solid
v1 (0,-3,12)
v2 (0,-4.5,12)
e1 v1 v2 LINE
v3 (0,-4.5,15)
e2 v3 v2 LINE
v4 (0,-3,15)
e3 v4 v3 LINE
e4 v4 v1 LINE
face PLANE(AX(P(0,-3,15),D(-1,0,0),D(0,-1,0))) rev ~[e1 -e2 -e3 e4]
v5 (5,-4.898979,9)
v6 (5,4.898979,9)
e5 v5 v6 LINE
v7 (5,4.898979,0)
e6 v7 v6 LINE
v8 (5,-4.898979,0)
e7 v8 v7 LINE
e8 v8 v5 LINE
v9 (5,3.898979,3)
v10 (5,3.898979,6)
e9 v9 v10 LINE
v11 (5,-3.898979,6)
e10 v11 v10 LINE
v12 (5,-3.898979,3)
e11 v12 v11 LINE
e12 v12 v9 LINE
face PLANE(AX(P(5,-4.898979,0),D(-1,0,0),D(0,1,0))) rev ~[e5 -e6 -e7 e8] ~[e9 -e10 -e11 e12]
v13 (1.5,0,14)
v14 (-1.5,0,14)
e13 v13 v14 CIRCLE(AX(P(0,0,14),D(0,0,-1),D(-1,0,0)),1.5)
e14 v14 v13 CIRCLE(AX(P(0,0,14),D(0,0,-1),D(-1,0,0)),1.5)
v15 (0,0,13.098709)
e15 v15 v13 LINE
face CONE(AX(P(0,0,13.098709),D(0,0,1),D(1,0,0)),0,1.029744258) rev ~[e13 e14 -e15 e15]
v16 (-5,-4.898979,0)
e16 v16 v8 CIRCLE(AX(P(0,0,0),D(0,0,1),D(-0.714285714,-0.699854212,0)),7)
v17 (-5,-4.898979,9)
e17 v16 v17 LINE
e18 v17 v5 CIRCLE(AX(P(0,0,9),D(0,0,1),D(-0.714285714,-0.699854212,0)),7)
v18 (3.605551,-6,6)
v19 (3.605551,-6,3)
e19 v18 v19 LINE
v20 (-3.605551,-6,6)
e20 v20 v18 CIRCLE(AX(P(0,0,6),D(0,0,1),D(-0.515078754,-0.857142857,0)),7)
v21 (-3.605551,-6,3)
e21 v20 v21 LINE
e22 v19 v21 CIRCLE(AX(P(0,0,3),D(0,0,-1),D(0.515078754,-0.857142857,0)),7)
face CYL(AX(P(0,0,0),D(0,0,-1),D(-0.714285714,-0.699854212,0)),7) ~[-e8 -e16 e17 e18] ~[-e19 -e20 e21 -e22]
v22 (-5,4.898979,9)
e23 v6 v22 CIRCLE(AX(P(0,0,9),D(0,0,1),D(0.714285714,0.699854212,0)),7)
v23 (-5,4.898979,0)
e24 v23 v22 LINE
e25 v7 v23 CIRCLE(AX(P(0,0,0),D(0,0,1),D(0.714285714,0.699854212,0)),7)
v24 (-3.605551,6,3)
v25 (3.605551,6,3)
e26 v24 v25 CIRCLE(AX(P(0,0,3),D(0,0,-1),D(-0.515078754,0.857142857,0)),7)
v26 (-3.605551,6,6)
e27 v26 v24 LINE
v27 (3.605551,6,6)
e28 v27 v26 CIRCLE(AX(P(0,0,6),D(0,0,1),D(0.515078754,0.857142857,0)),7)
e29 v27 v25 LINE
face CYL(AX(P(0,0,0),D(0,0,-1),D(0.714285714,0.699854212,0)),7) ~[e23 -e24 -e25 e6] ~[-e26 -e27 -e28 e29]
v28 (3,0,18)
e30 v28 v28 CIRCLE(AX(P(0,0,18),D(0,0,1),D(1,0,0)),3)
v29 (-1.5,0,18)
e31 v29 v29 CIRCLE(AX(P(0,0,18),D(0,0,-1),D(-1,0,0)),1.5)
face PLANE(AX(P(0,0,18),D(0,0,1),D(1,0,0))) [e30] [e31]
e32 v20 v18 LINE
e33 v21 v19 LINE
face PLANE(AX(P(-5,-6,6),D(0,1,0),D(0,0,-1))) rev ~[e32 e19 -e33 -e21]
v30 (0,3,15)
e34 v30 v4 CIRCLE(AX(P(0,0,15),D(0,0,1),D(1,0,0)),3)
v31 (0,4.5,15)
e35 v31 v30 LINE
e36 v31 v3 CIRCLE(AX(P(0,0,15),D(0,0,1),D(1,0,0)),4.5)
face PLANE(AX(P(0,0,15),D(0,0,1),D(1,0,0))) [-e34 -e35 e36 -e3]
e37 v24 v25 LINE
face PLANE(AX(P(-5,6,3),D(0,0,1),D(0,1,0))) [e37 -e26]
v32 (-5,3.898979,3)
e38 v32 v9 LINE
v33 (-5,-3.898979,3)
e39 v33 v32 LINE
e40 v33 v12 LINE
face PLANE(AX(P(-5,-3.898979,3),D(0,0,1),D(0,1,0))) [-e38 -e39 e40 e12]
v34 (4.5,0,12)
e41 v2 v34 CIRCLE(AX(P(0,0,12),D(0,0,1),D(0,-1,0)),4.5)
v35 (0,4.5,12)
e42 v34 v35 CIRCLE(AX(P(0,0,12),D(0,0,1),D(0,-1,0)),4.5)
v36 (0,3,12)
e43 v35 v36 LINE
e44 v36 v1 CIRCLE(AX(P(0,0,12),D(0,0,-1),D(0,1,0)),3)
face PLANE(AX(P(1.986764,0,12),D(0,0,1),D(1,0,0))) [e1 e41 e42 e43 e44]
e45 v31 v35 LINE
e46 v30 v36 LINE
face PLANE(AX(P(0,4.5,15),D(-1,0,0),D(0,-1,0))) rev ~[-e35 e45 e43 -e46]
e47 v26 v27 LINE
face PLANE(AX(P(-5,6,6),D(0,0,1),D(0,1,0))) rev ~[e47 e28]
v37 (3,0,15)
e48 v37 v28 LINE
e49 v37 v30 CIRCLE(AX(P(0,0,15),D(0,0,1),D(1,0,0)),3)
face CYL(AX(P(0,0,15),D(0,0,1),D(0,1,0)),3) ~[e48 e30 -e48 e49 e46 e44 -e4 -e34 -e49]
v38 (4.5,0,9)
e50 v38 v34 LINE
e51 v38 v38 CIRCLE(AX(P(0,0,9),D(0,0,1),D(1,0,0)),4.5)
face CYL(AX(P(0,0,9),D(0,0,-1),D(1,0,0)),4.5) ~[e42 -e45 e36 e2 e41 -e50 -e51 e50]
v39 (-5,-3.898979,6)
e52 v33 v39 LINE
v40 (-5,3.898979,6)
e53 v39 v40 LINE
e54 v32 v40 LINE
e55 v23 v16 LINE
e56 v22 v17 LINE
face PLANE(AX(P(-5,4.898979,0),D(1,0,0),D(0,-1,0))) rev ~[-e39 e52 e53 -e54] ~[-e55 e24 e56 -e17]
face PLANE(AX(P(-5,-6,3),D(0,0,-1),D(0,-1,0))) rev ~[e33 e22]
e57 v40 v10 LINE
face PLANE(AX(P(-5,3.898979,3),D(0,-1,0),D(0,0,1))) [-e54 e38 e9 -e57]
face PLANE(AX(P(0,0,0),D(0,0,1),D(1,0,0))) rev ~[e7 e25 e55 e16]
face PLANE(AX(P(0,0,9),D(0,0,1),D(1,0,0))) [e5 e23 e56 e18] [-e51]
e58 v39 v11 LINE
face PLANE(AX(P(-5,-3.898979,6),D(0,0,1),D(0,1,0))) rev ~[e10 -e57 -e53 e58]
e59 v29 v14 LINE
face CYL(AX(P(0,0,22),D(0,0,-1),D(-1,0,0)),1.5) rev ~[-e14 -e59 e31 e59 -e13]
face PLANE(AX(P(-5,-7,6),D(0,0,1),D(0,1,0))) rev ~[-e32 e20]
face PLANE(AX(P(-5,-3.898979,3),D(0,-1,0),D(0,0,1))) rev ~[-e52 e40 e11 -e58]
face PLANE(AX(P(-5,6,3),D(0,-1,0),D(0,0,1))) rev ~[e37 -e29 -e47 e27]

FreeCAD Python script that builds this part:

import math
import FreeCAD as App
import Part
import Sketcher
from FreeCAD import Vector

doc = App.newDocument("Part")
body = doc.addObject("PartDesign::Body", "Body")

# Sketch on XY plane
sketch1 = body.newObject("Sketcher::SketchObject", "Sketch")
sketch1.AttachmentSupport = (doc.getObject("XY_Plane"), [""])
sketch1.MapMode = "FlatFace"
sketch1.addGeometry([
    Part.ArcOfCircle(Part.Circle(Vector(0, 0, 0), Vector(0, 0, 1), 7), math.radians(-135.584691), math.radians(-44.415309)),
    Part.LineSegment(Vector(5, -4.898979, 0), Vector(5, 4.898979, 0)),
    Part.ArcOfCircle(Part.Circle(Vector(0, 0, 0), Vector(0, 0, 1), 7), math.radians(44.415309), math.radians(135.584691)),
    Part.LineSegment(Vector(-5, 4.898979, 0), Vector(-5, -4.898979, 0)),
], False)
sketch1.addConstraint([
    Sketcher.Constraint("Coincident", 0, 2, 1, 1),
    Sketcher.Constraint("Coincident", 1, 2, 2, 1),
    Sketcher.Constraint("Coincident", 2, 2, 3, 1),
    Sketcher.Constraint("Coincident", 3, 2, 0, 1),
    Sketcher.Constraint("Vertical", 1),
    Sketcher.Constraint("Vertical", 3),
    Sketcher.Constraint("Coincident", 0, 3, -1, 1),
    Sketcher.Constraint("Coincident", 2, 3, -1, 1),
    Sketcher.Constraint("Equal", 0, 2),
    Sketcher.Constraint("Horizontal", 1, 2, 2, 2),
    Sketcher.Constraint("Radius", 0, 7.0),
    Sketcher.Constraint("DistanceX", -1, 1, 0, 2, 5.0),
])
pad1 = body.newObject("PartDesign::Pad", "Pad")
pad1.Profile = sketch1
pad1.Length = 9

# Sketch on YZ plane
sketch2 = body.newObject("Sketcher::SketchObject", "Sketch001")
sketch2.AttachmentSupport = (doc.getObject("YZ_Plane"), [""])
sketch2.MapMode = "FlatFace"
sketch2.AttachmentOffset = App.Placement(Vector(0, 0, -5), App.Rotation())
sketch2.addGeometry([
    Part.LineSegment(Vector(7, 3, 0), Vector(6, 3, 0)),  # 0
    Part.LineSegment(Vector(6, 3, 0), Vector(6, 6, 0)),  # 1
    Part.LineSegment(Vector(6, 6, 0), Vector(7, 6, 0)),  # 2
    Part.LineSegment(Vector(7, 6, 0), Vector(7, 3, 0)),  # 3
    Part.LineSegment(Vector(3.898979, 3, 0), Vector(-3.898979, 3, 0)),  # 4
    Part.LineSegment(Vector(-3.898979, 3, 0), Vector(-3.898979, 6, 0)),  # 5
    Part.LineSegment(Vector(-3.898979, 6, 0), Vector(3.898979, 6, 0)),  # 6
    Part.LineSegment(Vector(3.898979, 6, 0), Vector(3.898979, 3, 0)),  # 7
    Part.LineSegment(Vector(-7, 3, 0), Vector(-7, 6, 0)),  # 8
    Part.LineSegment(Vector(-7, 6, 0), Vector(-6, 6, 0)),  # 9
    Part.LineSegment(Vector(-6, 6, 0), Vector(-6, 3, 0)),  # 10
    Part.LineSegment(Vector(-6, 3, 0), Vector(-7, 3, 0)),  # 11
], False)
sketch2.addConstraint([
    Sketcher.Constraint("Coincident", 0, 2, 1, 1),
    Sketcher.Constraint("Coincident", 1, 2, 2, 1),
    Sketcher.Constraint("Coincident", 2, 2, 3, 1),
    Sketcher.Constraint("Coincident", 3, 2, 0, 1),
    Sketcher.Constraint("Coincident", 4, 2, 5, 1),
    Sketcher.Constraint("Coincident", 5, 2, 6, 1),
    Sketcher.Constraint("Coincident", 6, 2, 7, 1),
    Sketcher.Constraint("Coincident", 7, 2, 4, 1),
    Sketcher.Constraint("Coincident", 8, 2, 9, 1),
    Sketcher.Constraint("Coincident", 9, 2, 10, 1),
    Sketcher.Constraint("Coincident", 10, 2, 11, 1),
    Sketcher.Constraint("Coincident", 11, 2, 8, 1),
    Sketcher.Constraint("Horizontal", 0),
    Sketcher.Constraint("Vertical", 1),
    Sketcher.Constraint("Horizontal", 2),
    Sketcher.Constraint("Vertical", 3),
    Sketcher.Constraint("Horizontal", 4),
    Sketcher.Constraint("Vertical", 5),
    Sketcher.Constraint("Horizontal", 6),
    Sketcher.Constraint("Vertical", 7),
    Sketcher.Constraint("Vertical", 8),
    Sketcher.Constraint("Horizontal", 9),
    Sketcher.Constraint("Vertical", 10),
    Sketcher.Constraint("Horizontal", 11),
    Sketcher.Constraint("Symmetric", 2, 2, 8, 2, -2),
    Sketcher.Constraint("Symmetric", 0, 2, 10, 2, -2),
    Sketcher.Constraint("Horizontal", 3, 2, 4, 2),
    Sketcher.Constraint("Horizontal", 2, 2, 5, 2),
    Sketcher.Constraint("DistanceX", 0, 2, 0, 1, 1.0),
    Sketcher.Constraint("DistanceY", 1, 1, 1, 2, 3.0),
    Sketcher.Constraint("DistanceX", -1, 1, 0, 2, 6.0),
    Sketcher.Constraint("DistanceY", -1, 1, 0, 2, 3.0),
    Sketcher.Constraint("DistanceX", 4, 2, 4, 1, 7.797959),
    Sketcher.Constraint("DistanceX", 4, 2, -1, 1, 3.898979),
])
pocket1 = body.newObject("PartDesign::Pocket", "Pocket")
pocket1.Profile = sketch2
pocket1.Length = 19
pocket1.Reversed = True

# Sketch on XY plane
sketch3 = body.newObject("Sketcher::SketchObject", "Sketch002")
sketch3.AttachmentSupport = (doc.getObject("XY_Plane"), [""])
sketch3.MapMode = "FlatFace"
sketch3.AttachmentOffset = App.Placement(Vector(0, 0, 9), App.Rotation())
sketch3.addGeometry(Part.Circle(Vector(0, 0, 0), Vector(0, 0, 1), 4.5), False)
sketch3.addConstraint([
    Sketcher.Constraint("Coincident", 0, 3, -1, 1),
    Sketcher.Constraint("Diameter", 0, 9.0),
])
pad2 = body.newObject("PartDesign::Pad", "Pad001")
pad2.Profile = sketch3
pad2.Length = 6

# Sketch on XY plane
sketch4 = body.newObject("Sketcher::SketchObject", "Sketch003")
sketch4.AttachmentSupport = (doc.getObject("XY_Plane"), [""])
sketch4.MapMode = "FlatFace"
sketch4.AttachmentOffset = App.Placement(Vector(0, 0, 15), App.Rotation())
sketch4.addGeometry(Part.Circle(Vector(0, 0, 0), Vector(0, 0, 1), 3), False)
sketch4.addConstraint([
    Sketcher.Constraint("Coincident", 0, 3, -1, 1),
    Sketcher.Constraint("Diameter", 0, 6.0),
])
pad3 = body.newObject("PartDesign::Pad", "Pad002")
pad3.Profile = sketch4
pad3.Length = 3

# Sketch on XY plane
sketch5 = body.newObject("Sketcher::SketchObject", "Sketch004")
sketch5.AttachmentSupport = (doc.getObject("XY_Plane"), [""])
sketch5.MapMode = "FlatFace"
sketch5.AttachmentOffset = App.Placement(Vector(0, 0, 18), App.Rotation())
sketch5.addGeometry(Part.Circle(Vector(0, 0, 0), Vector(0, 0, 1), 1.5), False)
sketch5.addConstraint([
    Sketcher.Constraint("Coincident", 0, 3, -1, 1),
    Sketcher.Constraint("Diameter", 0, 3.0),
])
doc.recompute()
hole = body.newObject("PartDesign::Hole", "Hole")
hole.Profile = sketch5
hole.ThreadType = "None"
hole.Diameter = 3
hole.DepthType = "Dimension"
hole.Depth = 4
hole.DrillPoint = "Angled"
hole.DrillPointAngle = 118

# Sketch on XY plane
sketch6 = body.newObject("Sketcher::SketchObject", "Sketch005")
sketch6.AttachmentSupport = (doc.getObject("XY_Plane"), [""])
sketch6.MapMode = "FlatFace"
sketch6.AttachmentOffset = App.Placement(Vector(0, 0, 15), App.Rotation())
sketch6.addGeometry([
    Part.LineSegment(Vector(0, 4.5, 0), Vector(0, 3, 0)),
    Part.ArcOfCircle(Part.Circle(Vector(0, 0, 0), Vector(0, 0, 1), 3), math.radians(-90), math.radians(90)),
    Part.LineSegment(Vector(0, -3, 0), Vector(0, -4.5, 0)),
    Part.ArcOfCircle(Part.Circle(Vector(0, 0, 0), Vector(0, 0, 1), 4.5), math.radians(-90), math.radians(90)),
], False)
sketch6.addConstraint([
    Sketcher.Constraint("Coincident", 0, 2, 1, 2),
    Sketcher.Constraint("Coincident", 1, 1, 2, 1),
    Sketcher.Constraint("Coincident", 2, 2, 3, 1),
    Sketcher.Constraint("Coincident", 3, 2, 0, 1),
    Sketcher.Constraint("Vertical", 0),
    Sketcher.Constraint("Vertical", 2),
    Sketcher.Constraint("Coincident", 1, 3, -1, 1),
    Sketcher.Constraint("Coincident", 3, 3, -1, 1),
    Sketcher.Constraint("PointOnObject", 0, 2, -2),
    Sketcher.Constraint("PointOnObject", 1, 1, -2),
    Sketcher.Constraint("Radius", 1, 3.0),
    Sketcher.Constraint("Radius", 3, 4.5),
])
pocket2 = body.newObject("PartDesign::Pocket", "Pocket001")
pocket2.Profile = sketch6
pocket2.Length = 3

doc.recompute()
